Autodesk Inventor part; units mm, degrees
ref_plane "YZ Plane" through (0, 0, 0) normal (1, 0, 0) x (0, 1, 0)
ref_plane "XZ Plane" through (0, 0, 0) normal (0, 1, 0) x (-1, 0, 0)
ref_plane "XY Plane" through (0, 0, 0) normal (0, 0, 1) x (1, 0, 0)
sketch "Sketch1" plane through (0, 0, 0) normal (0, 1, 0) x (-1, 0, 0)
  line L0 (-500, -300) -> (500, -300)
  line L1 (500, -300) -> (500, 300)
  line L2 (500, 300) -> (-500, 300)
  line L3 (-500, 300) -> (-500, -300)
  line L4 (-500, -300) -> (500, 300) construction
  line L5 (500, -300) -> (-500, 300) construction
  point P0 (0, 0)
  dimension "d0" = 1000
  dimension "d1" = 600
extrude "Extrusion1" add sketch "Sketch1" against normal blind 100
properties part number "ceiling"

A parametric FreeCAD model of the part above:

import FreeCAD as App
import Part
import Sketcher

V = App.Vector

doc = App.newDocument("Part")
body = doc.addObject("PartDesign::Body", "Body")

# Sketch on XZ plane
sketch1 = body.newObject("Sketcher::SketchObject", "Sketch")
sketch1.AttachmentSupport = (doc.getObject("XZ_Plane"), [""])
sketch1.MapMode = "FlatFace"
sketch1.addGeometry(Part.LineSegment(V(500, 300, 0), V(500, -300, 0)), False)
sketch1.addGeometry(Part.LineSegment(V(500, -300, 0), V(-500, -300, 0)), False)
sketch1.addGeometry(Part.LineSegment(V(-500, -300, 0), V(-500, 300, 0)), False)
sketch1.addGeometry(Part.LineSegment(V(-500, 300, 0), V(500, 300, 0)), False)
sketch1.addConstraint(Sketcher.Constraint("Coincident", 0, 2, 1, 1))
sketch1.addConstraint(Sketcher.Constraint("Coincident", 1, 2, 2, 1))
sketch1.addConstraint(Sketcher.Constraint("Coincident", 2, 2, 3, 1))
sketch1.addConstraint(Sketcher.Constraint("Coincident", 3, 2, 0, 1))
sketch1.addConstraint(Sketcher.Constraint("Vertical", 0))
sketch1.addConstraint(Sketcher.Constraint("Horizontal", 1))
sketch1.addConstraint(Sketcher.Constraint("Vertical", 2))
sketch1.addConstraint(Sketcher.Constraint("Horizontal", 3))
sketch1.addConstraint(Sketcher.Constraint("Symmetric", 0, 2, 2, 2, -1, 1))
sketch1.addConstraint(Sketcher.Constraint("DistanceX", 1, 2, 1, 1, 1000.0))
sketch1.addConstraint(Sketcher.Constraint("DistanceY", 0, 2, 0, 1, 600.0))
pad1 = body.newObject("PartDesign::Pad", "Pad")
pad1.Profile = sketch1
pad1.Length = 100

doc.recompute()
